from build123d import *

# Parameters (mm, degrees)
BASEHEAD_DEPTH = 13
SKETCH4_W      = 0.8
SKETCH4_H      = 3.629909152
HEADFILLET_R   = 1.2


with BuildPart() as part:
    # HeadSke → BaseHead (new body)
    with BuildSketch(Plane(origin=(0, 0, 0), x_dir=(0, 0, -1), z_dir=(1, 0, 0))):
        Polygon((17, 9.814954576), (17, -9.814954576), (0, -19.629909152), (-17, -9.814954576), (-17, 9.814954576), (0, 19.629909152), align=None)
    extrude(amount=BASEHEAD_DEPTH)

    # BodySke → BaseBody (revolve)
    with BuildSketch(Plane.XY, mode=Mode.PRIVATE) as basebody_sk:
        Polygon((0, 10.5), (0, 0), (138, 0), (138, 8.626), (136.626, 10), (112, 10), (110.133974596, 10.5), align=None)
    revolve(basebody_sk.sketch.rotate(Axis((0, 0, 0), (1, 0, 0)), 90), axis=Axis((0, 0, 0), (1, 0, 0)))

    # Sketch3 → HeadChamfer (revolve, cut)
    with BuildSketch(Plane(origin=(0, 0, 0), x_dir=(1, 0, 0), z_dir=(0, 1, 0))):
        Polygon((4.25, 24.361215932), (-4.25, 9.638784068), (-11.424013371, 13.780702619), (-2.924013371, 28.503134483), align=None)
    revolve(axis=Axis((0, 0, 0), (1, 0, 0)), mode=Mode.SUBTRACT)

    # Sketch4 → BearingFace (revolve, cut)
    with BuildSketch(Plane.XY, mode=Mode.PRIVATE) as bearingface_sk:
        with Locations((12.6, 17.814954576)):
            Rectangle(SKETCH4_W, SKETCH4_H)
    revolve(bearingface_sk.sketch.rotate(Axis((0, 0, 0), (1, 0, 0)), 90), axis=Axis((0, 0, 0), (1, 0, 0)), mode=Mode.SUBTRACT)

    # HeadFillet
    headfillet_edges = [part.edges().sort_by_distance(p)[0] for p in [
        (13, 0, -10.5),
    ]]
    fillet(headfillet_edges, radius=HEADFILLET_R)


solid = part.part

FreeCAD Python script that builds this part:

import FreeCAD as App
import Part
import Sketcher
Q = App.Units.Quantity


def edges_at(feature, points):
    """Names of the edges that pass closest to the given points."""
    edges = feature.Shape.Edges
    near = lambda p: min(range(len(edges)), key=lambda i: edges[i].distToShape(Part.Vertex(*p))[0])
    return sorted({f"Edge{near(p) + 1}" for p in points})

doc = App.newDocument("Part")
params = doc.addObject("Spreadsheet::Sheet", "Params")
for row, (alias, value) in enumerate([
    ("pad1_length", "13 mm"),
    ("sketch2_width", "138 mm"),
    ("sketch2_height", "10.5 mm"),
    ("revolution_angle", "360 deg"),
    ("sketch3_length", "17 mm"),
    ("groove_angle", "360 deg"),
    ("sketch4_width", "0.8 mm"),
    ("groove2_angle", "360 deg"),
    ("fillet_radius", "1.2 mm"),
], start=1):
    params.set(f"A{row}", alias)
    params.set(f"B{row}", "=" + value)
    params.setAlias(f"B{row}", alias)

body = doc.addObject("PartDesign::Body", "Body")

sketch1 = body.newObject("Sketcher::SketchObject", "Sketch")
sketch1.AttachmentSupport = (doc.getObject("YZ_Plane"), [""])
sketch1.MapMode = "FlatFace"
sketch1.addGeometry(Part.LineSegment(App.Vector(-10, -17, 0), App.Vector(10, -17, 0)), False)
sketch1.addGeometry(Part.LineSegment(App.Vector(10, -17, 0), App.Vector(20, 0, 0)), False)
sketch1.addGeometry(Part.LineSegment(App.Vector(20, 0, 0), App.Vector(10, 17, 0)), False)
sketch1.addGeometry(Part.LineSegment(App.Vector(10, 17, 0), App.Vector(-10, 17, 0)), False)
sketch1.addGeometry(Part.LineSegment(App.Vector(-10, 17, 0), App.Vector(-20, 0, 0)), False)
sketch1.addGeometry(Part.LineSegment(App.Vector(-20, 0, 0), App.Vector(-10, -17, 0)), False)
sketch1.addConstraint(Sketcher.Constraint("Coincident", 0, 2, 1, 1))
sketch1.addConstraint(Sketcher.Constraint("Coincident", 1, 2, 2, 1))
sketch1.addConstraint(Sketcher.Constraint("Coincident", 2, 2, 3, 1))
sketch1.addConstraint(Sketcher.Constraint("Coincident", 3, 2, 4, 1))
sketch1.addConstraint(Sketcher.Constraint("Coincident", 4, 2, 5, 1))
sketch1.addConstraint(Sketcher.Constraint("Coincident", 5, 2, 0, 1))
sketch1.addConstraint(Sketcher.Constraint("Horizontal", 0))
sketch1.addConstraint(Sketcher.Constraint("Horizontal", 3))
sketch1.addConstraint(Sketcher.Constraint("Symmetric", 0, 2, 3, 2, -1, 1))
sketch1.addConstraint(Sketcher.Constraint("Symmetric", 1, 2, 4, 2, -1, 1))
sketch1.addConstraint(Sketcher.Constraint("PointOnObject", 1, 2, -1))
sketch1.addConstraint(Sketcher.Constraint("Parallel", 2, 5))
sketch1.addConstraint(Sketcher.Constraint("Vertical", 0, 2, 2, 2))
sketch1.addConstraint(Sketcher.Constraint("Angle", 1, Q("60 deg")))
sketch1.addConstraint(Sketcher.Constraint("DistanceY", 0, 2, -1, 1, 17.0))
sketch1.addConstraint(Sketcher.Constraint("DistanceX", 0, 1, 0, 2, 19.629909))
pad1 = body.newObject("PartDesign::Pad", "Pad")
pad1.Profile = sketch1
pad1.setExpression("Length", "Params.pad1_length")

sketch2 = body.newObject("Sketcher::SketchObject", "Sketch001")
sketch2.AttachmentSupport = (doc.getObject("XY_Plane"), [""])
sketch2.MapMode = "FlatFace"
sketch2.addGeometry(Part.LineSegment(App.Vector(0, 10.5, 0), App.Vector(0, 0, 0)), False)
sketch2.addGeometry(Part.LineSegment(App.Vector(0, 0, 0), App.Vector(138, 0, 0)), False)
sketch2.addGeometry(Part.LineSegment(App.Vector(138, 0, 0), App.Vector(138, 8.6, 0)), False)
sketch2.addGeometry(Part.LineSegment(App.Vector(138, 8.6, 0), App.Vector(136.6, 10, 0)), False)
sketch2.addGeometry(Part.LineSegment(App.Vector(136.6, 10, 0), App.Vector(112, 10, 0)), False)
sketch2.addGeometry(Part.LineSegment(App.Vector(112, 10, 0), App.Vector(110.1, 10.5, 0)), False)
sketch2.addGeometry(Part.LineSegment(App.Vector(110.1, 10.5, 0), App.Vector(0, 10.5, 0)), False)
sketch2.addConstraint(Sketcher.Constraint("Coincident", 0, 2, 1, 1))
sketch2.addConstraint(Sketcher.Constraint("Coincident", 1, 2, 2, 1))
sketch2.addConstraint(Sketcher.Constraint("Coincident", 2, 2, 3, 1))
sketch2.addConstraint(Sketcher.Constraint("Coincident", 3, 2, 4, 1))
sketch2.addConstraint(Sketcher.Constraint("Coincident", 4, 2, 5, 1))
sketch2.addConstraint(Sketcher.Constraint("Coincident", 5, 2, 6, 1))
sketch2.addConstraint(Sketcher.Constraint("Coincident", 6, 2, 0, 1))
sketch2.addConstraint(Sketcher.Constraint("Vertical", 0))
sketch2.addConstraint(Sketcher.Constraint("Horizontal", 1))
sketch2.addConstraint(Sketcher.Constraint("Vertical", 2))
sketch2.addConstraint(Sketcher.Constraint("Horizontal", 4))
sketch2.addConstraint(Sketcher.Constraint("Horizontal", 6))
sketch2.addConstraint(Sketcher.Constraint("Coincident", 0, 2, -1, 1))
sketch2.addConstraint(Sketcher.Constraint("DistanceX", 1, 1, 1, 2, 138.0))
sketch2.addConstraint(Sketcher.Constraint("Angle", 3, Q("135 deg")))
sketch2.addConstraint(Sketcher.Constraint("Angle", 5, Q("165 deg")))
sketch2.addConstraint(Sketcher.Constraint("DistanceY", 0, 2, 0, 1, 10.5))
sketch2.addConstraint(Sketcher.Constraint("DistanceY", -1, 1, 3, 2, 10.0))
sketch2.addConstraint(Sketcher.Constraint("DistanceX", -1, 1, 4, 2, 112.0))
sketch2.addConstraint(Sketcher.Constraint("DistanceX", 4, 2, 4, 1, 24.626))
sketch2.setExpression("Constraints[13]", "Params.sketch2_width")
sketch2.setExpression("Constraints[16]", "Params.sketch2_height")
revolution = body.newObject("PartDesign::Revolution", "Revolution")
revolution.Profile = sketch2
revolution.ReferenceAxis = (sketch2, ["H_Axis"])
revolution.setExpression("Angle", "Params.revolution_angle")

sketch3 = body.newObject("Sketcher::SketchObject", "Sketch002")
sketch3.AttachmentSupport = (doc.getObject("XZ_Plane"), [""])
sketch3.MapMode = "FlatFace"
sketch3.addGeometry(Part.LineSegment(App.Vector(-4, -10, 0), App.Vector(4, -24, 0)), False)
sketch3.addGeometry(Part.LineSegment(App.Vector(4, -24, 0), App.Vector(-3, -29, 0)), False)
sketch3.addGeometry(Part.LineSegment(App.Vector(-3, -29, 0), App.Vector(-11, -14, 0)), False)
sketch3.addGeometry(Part.LineSegment(App.Vector(-11, -14, 0), App.Vector(-4, -10, 0)), False)
sketch3.addConstraint(Sketcher.Constraint("Coincident", 0, 2, 1, 1))
sketch3.addConstraint(Sketcher.Constraint("Coincident", 1, 2, 2, 1))
sketch3.addConstraint(Sketcher.Constraint("Coincident", 2, 2, 3, 1))
sketch3.addConstraint(Sketcher.Constraint("Coincident", 3, 2, 0, 1))
sketch3.addConstraint(Sketcher.Constraint("Perpendicular", 0, 1))
sketch3.addConstraint(Sketcher.Constraint("Perpendicular", 1, 2))
sketch3.addConstraint(Sketcher.Constraint("Perpendicular", 2, 3))
sketch3.addConstraint(Sketcher.Constraint("Angle", 0, Q("-60 deg")))
sketch3.addConstraint(Sketcher.Constraint("Distance", 0, 17.0))
sketch3.addConstraint(Sketcher.Constraint("DistanceX", -1, 1, 0, 2, 4.25))
sketch3.addConstraint(Sketcher.Constraint("DistanceY", 1, 2, 0, 2, 4.141919))
sketch3.addConstraint(Sketcher.Constraint("DistanceY", 0, 2, -1, 1, 24.361216))
sketch3.setExpression("Constraints[8]", "Params.sketch3_length")
groove = body.newObject("PartDesign::Groove", "Groove")
groove.Profile = sketch3
groove.ReferenceAxis = (sketch3, ["H_Axis"])
groove.setExpression("Angle", "Params.groove_angle")

sketch4 = body.newObject("Sketcher::SketchObject", "Sketch003")
sketch4.AttachmentSupport = (doc.getObject("XY_Plane"), [""])
sketch4.MapMode = "FlatFace"
sketch4.addGeometry(Part.LineSegment(App.Vector(12.2, 19.6, 0), App.Vector(12.2, 16, 0)), False)
sketch4.addGeometry(Part.LineSegment(App.Vector(12.2, 16, 0), App.Vector(13, 16, 0)), False)
sketch4.addGeometry(Part.LineSegment(App.Vector(13, 16, 0), App.Vector(13, 19.6, 0)), False)
sketch4.addGeometry(Part.LineSegment(App.Vector(13, 19.6, 0), App.Vector(12.2, 19.6, 0)), False)
sketch4.addConstraint(Sketcher.Constraint("Coincident", 0, 2, 1, 1))
sketch4.addConstraint(Sketcher.Constraint("Coincident", 1, 2, 2, 1))
sketch4.addConstraint(Sketcher.Constraint("Coincident", 2, 2, 3, 1))
sketch4.addConstraint(Sketcher.Constraint("Coincident", 3, 2, 0, 1))
sketch4.addConstraint(Sketcher.Constraint("Vertical", 0))
sketch4.addConstraint(Sketcher.Constraint("Horizontal", 1))
sketch4.addConstraint(Sketcher.Constraint("Vertical", 2))
sketch4.addConstraint(Sketcher.Constraint("Horizontal", 3))
sketch4.addConstraint(Sketcher.Constraint("DistanceX", 1, 1, 1, 2, 0.8))
sketch4.addConstraint(Sketcher.Constraint("DistanceY", -1, 1, 0, 2, 16.0))
sketch4.addConstraint(Sketcher.Constraint("DistanceX", -1, 1, 1, 2, 13.0))
sketch4.addConstraint(Sketcher.Constraint("DistanceY", 0, 2, 0, 1, 3.629909))
sketch4.setExpression("Constraints[8]", "Params.sketch4_width")
groove2 = body.newObject("PartDesign::Groove", "Groove001")
groove2.Profile = sketch4
groove2.ReferenceAxis = (sketch4, ["H_Axis"])
groove2.setExpression("Angle", "Params.groove2_angle")
doc.recompute()

fillet = body.newObject("PartDesign::Fillet", "Fillet")
fillet.Base = (groove2, edges_at(groove2, [(13, 0, -10.5)]))
fillet.setExpression("Radius", "Params.fillet_radius")

doc.recompute()
